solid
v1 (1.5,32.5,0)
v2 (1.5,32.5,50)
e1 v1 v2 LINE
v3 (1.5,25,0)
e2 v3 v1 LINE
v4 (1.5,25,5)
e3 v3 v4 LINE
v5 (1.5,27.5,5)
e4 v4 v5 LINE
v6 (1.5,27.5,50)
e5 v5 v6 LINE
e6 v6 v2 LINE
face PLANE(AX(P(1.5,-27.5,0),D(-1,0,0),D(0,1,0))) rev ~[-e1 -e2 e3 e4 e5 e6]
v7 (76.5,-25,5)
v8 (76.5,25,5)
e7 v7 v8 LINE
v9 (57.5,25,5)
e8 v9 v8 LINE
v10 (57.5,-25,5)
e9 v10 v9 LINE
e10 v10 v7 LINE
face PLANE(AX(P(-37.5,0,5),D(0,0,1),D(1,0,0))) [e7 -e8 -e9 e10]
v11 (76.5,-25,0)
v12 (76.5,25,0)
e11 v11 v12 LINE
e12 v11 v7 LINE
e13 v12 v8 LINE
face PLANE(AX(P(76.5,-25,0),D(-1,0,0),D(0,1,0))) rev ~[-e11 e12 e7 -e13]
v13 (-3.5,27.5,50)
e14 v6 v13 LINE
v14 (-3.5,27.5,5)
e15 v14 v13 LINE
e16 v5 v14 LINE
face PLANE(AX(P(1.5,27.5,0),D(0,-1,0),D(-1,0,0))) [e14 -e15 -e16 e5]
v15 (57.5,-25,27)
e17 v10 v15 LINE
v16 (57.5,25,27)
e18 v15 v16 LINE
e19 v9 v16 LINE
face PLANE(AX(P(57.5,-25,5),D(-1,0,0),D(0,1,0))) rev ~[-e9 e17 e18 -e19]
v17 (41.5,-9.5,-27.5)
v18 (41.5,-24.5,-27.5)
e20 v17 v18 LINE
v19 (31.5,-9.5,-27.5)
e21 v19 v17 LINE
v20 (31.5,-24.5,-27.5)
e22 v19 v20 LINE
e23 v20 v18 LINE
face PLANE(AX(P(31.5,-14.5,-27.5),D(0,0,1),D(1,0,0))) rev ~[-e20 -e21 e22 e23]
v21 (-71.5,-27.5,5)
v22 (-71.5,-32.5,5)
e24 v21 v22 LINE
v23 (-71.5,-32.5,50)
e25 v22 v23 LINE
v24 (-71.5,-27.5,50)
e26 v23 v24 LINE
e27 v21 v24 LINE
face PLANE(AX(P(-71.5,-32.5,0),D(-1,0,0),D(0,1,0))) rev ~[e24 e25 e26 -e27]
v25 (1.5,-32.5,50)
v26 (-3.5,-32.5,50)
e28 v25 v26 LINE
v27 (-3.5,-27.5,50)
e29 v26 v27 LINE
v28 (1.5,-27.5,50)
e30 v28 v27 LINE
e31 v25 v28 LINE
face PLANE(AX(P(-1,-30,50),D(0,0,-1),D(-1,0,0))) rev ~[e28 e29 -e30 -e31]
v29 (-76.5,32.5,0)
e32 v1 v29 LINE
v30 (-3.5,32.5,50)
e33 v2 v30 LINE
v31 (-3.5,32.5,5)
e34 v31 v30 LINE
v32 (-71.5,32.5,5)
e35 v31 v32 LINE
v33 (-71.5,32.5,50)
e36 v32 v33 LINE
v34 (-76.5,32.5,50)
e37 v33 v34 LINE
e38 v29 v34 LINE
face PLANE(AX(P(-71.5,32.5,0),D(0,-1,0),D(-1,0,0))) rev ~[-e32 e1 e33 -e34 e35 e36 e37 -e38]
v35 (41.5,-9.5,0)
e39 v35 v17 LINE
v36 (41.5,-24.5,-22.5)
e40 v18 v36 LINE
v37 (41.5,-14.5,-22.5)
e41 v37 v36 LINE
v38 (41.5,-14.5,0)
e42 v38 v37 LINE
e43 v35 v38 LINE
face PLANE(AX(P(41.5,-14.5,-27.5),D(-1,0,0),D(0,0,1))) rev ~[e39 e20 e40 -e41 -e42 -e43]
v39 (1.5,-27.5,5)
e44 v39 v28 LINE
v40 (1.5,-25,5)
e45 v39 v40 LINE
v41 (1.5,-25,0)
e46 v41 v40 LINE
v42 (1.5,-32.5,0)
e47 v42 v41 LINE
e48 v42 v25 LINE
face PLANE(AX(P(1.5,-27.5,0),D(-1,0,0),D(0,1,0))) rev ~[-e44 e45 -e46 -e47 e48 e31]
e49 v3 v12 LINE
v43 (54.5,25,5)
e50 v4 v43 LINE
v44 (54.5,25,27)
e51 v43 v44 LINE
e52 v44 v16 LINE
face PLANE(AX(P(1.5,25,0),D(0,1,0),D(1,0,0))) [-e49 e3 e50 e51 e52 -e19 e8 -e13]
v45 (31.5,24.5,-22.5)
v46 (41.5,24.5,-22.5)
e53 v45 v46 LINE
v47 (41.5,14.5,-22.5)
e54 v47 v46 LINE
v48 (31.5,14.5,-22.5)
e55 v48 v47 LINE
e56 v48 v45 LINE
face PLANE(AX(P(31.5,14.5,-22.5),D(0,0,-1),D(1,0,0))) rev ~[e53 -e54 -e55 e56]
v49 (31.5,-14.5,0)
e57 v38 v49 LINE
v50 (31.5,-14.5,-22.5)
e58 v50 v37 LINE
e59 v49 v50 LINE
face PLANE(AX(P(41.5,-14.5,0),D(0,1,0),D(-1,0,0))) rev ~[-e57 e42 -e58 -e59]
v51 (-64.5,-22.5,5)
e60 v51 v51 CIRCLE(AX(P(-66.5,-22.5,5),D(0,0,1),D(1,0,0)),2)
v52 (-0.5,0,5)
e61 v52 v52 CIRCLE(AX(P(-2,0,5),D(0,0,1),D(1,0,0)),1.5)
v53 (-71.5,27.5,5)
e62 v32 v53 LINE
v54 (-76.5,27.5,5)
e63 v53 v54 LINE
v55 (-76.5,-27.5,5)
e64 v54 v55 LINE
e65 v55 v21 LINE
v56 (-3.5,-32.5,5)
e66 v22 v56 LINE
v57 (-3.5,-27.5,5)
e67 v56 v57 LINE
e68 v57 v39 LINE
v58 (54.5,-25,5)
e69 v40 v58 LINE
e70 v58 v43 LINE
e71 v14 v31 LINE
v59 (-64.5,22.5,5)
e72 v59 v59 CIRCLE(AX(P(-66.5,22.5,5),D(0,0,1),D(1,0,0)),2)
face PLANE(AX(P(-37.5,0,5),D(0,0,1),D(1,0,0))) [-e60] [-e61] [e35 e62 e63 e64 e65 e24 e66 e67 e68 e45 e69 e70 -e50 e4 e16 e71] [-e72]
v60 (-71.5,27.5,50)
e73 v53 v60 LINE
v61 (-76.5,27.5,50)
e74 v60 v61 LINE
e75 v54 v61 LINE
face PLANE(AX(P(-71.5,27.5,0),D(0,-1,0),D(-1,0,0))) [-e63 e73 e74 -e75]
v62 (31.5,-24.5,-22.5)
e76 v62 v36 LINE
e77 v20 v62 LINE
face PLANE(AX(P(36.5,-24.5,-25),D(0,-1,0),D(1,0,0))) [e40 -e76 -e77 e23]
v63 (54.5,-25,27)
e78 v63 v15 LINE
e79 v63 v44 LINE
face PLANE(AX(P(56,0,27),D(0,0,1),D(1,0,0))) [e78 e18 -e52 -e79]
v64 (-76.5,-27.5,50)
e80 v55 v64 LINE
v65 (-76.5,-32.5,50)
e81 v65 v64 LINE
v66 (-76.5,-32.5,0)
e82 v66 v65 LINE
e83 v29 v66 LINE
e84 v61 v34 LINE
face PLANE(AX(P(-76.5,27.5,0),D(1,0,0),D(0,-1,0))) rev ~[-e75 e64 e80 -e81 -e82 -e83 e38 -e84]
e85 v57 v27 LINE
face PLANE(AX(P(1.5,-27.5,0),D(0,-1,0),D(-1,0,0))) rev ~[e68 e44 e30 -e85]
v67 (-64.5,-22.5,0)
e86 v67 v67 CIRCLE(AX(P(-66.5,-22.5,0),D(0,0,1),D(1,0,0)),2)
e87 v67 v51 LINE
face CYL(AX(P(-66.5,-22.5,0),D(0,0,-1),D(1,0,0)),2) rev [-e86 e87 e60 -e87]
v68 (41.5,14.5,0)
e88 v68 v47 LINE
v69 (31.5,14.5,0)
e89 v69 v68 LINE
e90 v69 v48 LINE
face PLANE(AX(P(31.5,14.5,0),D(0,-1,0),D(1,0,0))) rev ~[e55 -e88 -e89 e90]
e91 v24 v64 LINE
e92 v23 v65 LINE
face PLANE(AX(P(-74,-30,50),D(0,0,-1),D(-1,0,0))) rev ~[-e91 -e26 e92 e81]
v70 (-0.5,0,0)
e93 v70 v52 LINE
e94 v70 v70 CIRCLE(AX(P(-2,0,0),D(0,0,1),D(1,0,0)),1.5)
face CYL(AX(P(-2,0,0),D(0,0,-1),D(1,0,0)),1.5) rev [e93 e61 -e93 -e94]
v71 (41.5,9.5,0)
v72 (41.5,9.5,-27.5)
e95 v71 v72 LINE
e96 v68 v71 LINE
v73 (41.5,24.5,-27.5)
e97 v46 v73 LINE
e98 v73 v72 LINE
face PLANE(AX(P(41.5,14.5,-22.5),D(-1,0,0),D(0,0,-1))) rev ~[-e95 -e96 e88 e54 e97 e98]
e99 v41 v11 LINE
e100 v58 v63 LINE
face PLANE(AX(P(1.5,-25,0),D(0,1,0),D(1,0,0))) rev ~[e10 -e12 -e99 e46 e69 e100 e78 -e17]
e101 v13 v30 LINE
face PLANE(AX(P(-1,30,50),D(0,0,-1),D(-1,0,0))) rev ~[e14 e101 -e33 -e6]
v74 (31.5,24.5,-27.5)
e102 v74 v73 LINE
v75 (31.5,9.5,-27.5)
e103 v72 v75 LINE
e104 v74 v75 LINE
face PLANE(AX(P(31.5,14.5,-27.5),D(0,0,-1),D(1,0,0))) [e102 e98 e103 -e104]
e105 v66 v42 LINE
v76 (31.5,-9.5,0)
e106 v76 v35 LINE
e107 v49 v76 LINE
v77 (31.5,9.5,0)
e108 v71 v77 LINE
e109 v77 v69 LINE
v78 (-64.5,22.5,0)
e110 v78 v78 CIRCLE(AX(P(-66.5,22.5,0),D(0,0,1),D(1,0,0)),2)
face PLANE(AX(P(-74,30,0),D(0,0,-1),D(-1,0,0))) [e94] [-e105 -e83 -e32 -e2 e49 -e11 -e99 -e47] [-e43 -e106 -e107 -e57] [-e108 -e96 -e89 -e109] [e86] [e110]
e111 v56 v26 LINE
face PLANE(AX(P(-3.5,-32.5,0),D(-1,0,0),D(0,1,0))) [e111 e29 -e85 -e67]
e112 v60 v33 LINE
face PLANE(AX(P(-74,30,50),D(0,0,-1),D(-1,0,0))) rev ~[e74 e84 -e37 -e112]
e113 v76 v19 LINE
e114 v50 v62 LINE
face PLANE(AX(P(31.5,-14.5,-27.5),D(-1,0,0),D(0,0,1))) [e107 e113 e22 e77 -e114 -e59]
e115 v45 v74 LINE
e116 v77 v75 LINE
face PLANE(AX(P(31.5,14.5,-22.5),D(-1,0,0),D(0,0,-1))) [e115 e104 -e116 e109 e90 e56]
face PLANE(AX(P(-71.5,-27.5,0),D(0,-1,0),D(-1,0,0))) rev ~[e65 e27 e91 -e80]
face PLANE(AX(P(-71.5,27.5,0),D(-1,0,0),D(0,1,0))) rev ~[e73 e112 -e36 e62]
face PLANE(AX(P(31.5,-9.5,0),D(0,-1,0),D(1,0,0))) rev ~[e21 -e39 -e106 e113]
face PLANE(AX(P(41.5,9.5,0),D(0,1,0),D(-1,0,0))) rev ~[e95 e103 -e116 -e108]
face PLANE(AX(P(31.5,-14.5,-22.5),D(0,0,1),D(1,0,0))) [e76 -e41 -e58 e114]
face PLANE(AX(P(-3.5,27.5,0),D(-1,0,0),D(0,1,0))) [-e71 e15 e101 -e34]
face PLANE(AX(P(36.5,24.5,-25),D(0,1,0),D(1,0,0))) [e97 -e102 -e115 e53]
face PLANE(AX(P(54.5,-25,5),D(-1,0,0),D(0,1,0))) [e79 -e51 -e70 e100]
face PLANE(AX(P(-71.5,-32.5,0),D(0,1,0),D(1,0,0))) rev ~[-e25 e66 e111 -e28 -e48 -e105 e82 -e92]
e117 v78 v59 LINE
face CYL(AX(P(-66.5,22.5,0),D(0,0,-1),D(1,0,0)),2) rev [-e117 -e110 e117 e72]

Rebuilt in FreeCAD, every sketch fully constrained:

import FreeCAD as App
import Part
import Sketcher
from FreeCAD import Vector
Q = App.Units.Quantity


def add_polygon(sketch, points):
    """Adds a closed chain of lines whose ends are joined by coincident constraints."""
    first, n = sketch.GeometryCount, len(points)
    for a, b in zip(points, points[1:] + points[:1]):
        sketch.addGeometry(Part.LineSegment(App.Vector(*a, 0), App.Vector(*b, 0)), False)
    for i in range(n):
        sketch.addConstraint(Sketcher.Constraint("Coincident", first + i, 2, first + (i + 1) % n, 1))

doc = App.newDocument("Part")
body = doc.addObject("PartDesign::Body", "Body")

# Sketch on XY plane
sketch1 = body.newObject("Sketcher::SketchObject", "Sketch")
sketch1.AttachmentSupport = (doc.getObject("XY_Plane"), [""])
sketch1.MapMode = "FlatFace"
add_polygon(sketch1, [(-71.5, -27.5), (-71.5, -32.5), (-3.5, -32.5), (-3.5, -27.5), (1.5, -27.5), (1.5, -25), (76.5, -25), (76.5, 25), (1.5, 25), (1.5, 27.5), (-3.5, 27.5), (-3.5, 32.5), (-71.5, 32.5), (-71.5, 27.5), (-76.5, 27.5), (-76.5, -27.5)])  # lines 0-15
sketch1.addGeometry(Part.Circle(Vector(-66.5, -22.5, 0), Vector(0, 0, 1), 2), False)  # 16
sketch1.addGeometry(Part.Circle(Vector(-2, 0, 0), Vector(0, 0, 1), 1.5), False)  # 17
sketch1.addGeometry(Part.Circle(Vector(-66.5, 22.5, 0), Vector(0, 0, 1), 2), False)  # 18
sketch1.addConstraint([
    Sketcher.Constraint("Vertical", 0),
    Sketcher.Constraint("Horizontal", 1),
    Sketcher.Constraint("Vertical", 2),
    Sketcher.Constraint("Horizontal", 3),
    Sketcher.Constraint("Vertical", 4),
    Sketcher.Constraint("Horizontal", 5),
    Sketcher.Constraint("Vertical", 6),
    Sketcher.Constraint("Horizontal", 7),
    Sketcher.Constraint("Vertical", 8),
    Sketcher.Constraint("Horizontal", 9),
    Sketcher.Constraint("Vertical", 10),
    Sketcher.Constraint("Horizontal", 11),
    Sketcher.Constraint("Vertical", 12),
    Sketcher.Constraint("Horizontal", 13),
    Sketcher.Constraint("Vertical", 14),
    Sketcher.Constraint("Horizontal", 15),
    Sketcher.Constraint("Equal", 16, 18),
    Sketcher.Constraint("Symmetric", 16, 3, 18, 3, -1),
    Sketcher.Constraint("Symmetric", 4, 2, 7, 2, -1),
    Sketcher.Constraint("Symmetric", 2, 2, 9, 2, -1),
    Sketcher.Constraint("Symmetric", 0, 2, 11, 2, -1),
    Sketcher.Constraint("PointOnObject", 17, 3, -1),
    Sketcher.Constraint("Horizontal", 9, 2, 12, 2),
    Sketcher.Constraint("Horizontal", 3, 2, 14, 2),
    Sketcher.Constraint("Equal", 9, 13),
    Sketcher.Constraint("Equal", 15, 0),
    Sketcher.Constraint("Diameter", 16, Q("4 mm")),
    Sketcher.Constraint("Diameter", 17, Q("3 mm")),
    Sketcher.Constraint("DistanceX", 1, 1, 1, 2, Q("68 mm")),
    Sketcher.Constraint("DistanceX", 3, 1, 3, 2, Q("5 mm")),
    Sketcher.Constraint("DistanceX", 5, 1, 5, 2, Q("75 mm")),
    Sketcher.Constraint("DistanceY", 6, 1, 6, 2, Q("50 mm")),
    Sketcher.Constraint("DistanceY", 14, 2, 14, 1, Q("55 mm")),
    Sketcher.Constraint("DistanceX", 17, 3, -1, 1, Q("2 mm")),
    Sketcher.Constraint("DistanceY", 16, 3, 18, 3, Q("45 mm")),
    Sketcher.Constraint("DistanceX", 0, 2, 16, 3, Q("5 mm")),
    Sketcher.Constraint("DistanceX", 16, 3, -1, 1, Q("66.5 mm")),
])
pad1 = body.newObject("PartDesign::Pad", "Pad")
pad1.Profile = sketch1
pad1.Length = 5

# Sketch on XY plane
sketch2 = body.newObject("Sketcher::SketchObject", "Sketch001")
sketch2.AttachmentSupport = (doc.getObject("XY_Plane"), [""])
sketch2.MapMode = "FlatFace"
add_polygon(sketch2, [(-72, 32), (-72, 28), (-76, 28), (-76, 32)])  # lines 0-3
add_polygon(sketch2, [(2, -28), (2, -32), (-4, -32), (-4, -28)])  # lines 4-7
add_polygon(sketch2, [(2, 32), (2, 28), (-4, 28), (-4, 32)])  # lines 8-11
add_polygon(sketch2, [(-72, -28), (-72, -32), (-76, -32), (-76, -28)])  # lines 12-15
sketch2.addConstraint([
    Sketcher.Constraint("Vertical", 0),
    Sketcher.Constraint("Horizontal", 1),
    Sketcher.Constraint("Vertical", 2),
    Sketcher.Constraint("Horizontal", 3),
    Sketcher.Constraint("Vertical", 4),
    Sketcher.Constraint("Horizontal", 5),
    Sketcher.Constraint("Vertical", 6),
    Sketcher.Constraint("Horizontal", 7),
    Sketcher.Constraint("Vertical", 8),
    Sketcher.Constraint("Horizontal", 9),
    Sketcher.Constraint("Vertical", 10),
    Sketcher.Constraint("Horizontal", 11),
    Sketcher.Constraint("Vertical", 12),
    Sketcher.Constraint("Horizontal", 13),
    Sketcher.Constraint("Vertical", 14),
    Sketcher.Constraint("Horizontal", 15),
    Sketcher.Constraint("Symmetric", 7, 2, 8, 2, -1),
    Sketcher.Constraint("Symmetric", 5, 2, 10, 2, -1),
    Sketcher.Constraint("Symmetric", 3, 2, 12, 2, -1),
    Sketcher.Constraint("Symmetric", 1, 2, 14, 2, -1),
    Sketcher.Constraint("Horizontal", 1, 2, 8, 2),
    Sketcher.Constraint("Horizontal", 3, 2, 10, 2),
    Sketcher.Constraint("Equal", 3, 5),
    Sketcher.Constraint("Equal", 15, 0),
    Sketcher.Constraint("DistanceX", 1, 2, 1, 1, Q("5 mm")),
    Sketcher.Constraint("DistanceX", 0, 2, 4, 2, Q("73 mm")),
    Sketcher.Constraint("DistanceY", 4, 2, 0, 2, Q("60 mm")),
    Sketcher.Constraint("DistanceX", 0, 2, -1, 1, Q("71.5 mm")),
])
pad2 = body.newObject("PartDesign::Pad", "Pad001")
pad2.Profile = sketch2
pad2.Length = 50

# Sketch on XY plane
sketch3 = body.newObject("Sketcher::SketchObject", "Sketch002")
sketch3.AttachmentSupport = (doc.getObject("XY_Plane"), [""])
sketch3.MapMode = "FlatFace"
sketch3.AttachmentOffset = App.Placement(Vector(0, 0, 5), App.Rotation())
add_polygon(sketch3, [(54.5, 25), (54.5, -25), (57.5, -25), (57.5, 25)])  # lines 0-3
sketch3.addConstraint([
    Sketcher.Constraint("Vertical", 0),
    Sketcher.Constraint("Horizontal", 1),
    Sketcher.Constraint("Vertical", 2),
    Sketcher.Constraint("Horizontal", 3),
    Sketcher.Constraint("DistanceX", 1, 1, 1, 2, Q("3 mm")),
    Sketcher.Constraint("DistanceY", 0, 2, 0, 1, Q("50 mm")),
    Sketcher.Constraint("DistanceY", 0, 2, -1, 1, Q("25 mm")),
    Sketcher.Constraint("DistanceX", -1, 1, 0, 2, Q("54.5 mm")),
])
pad3 = body.newObject("PartDesign::Pad", "Pad002")
pad3.Profile = sketch3
pad3.Length = 22

# Sketch on XY plane
sketch4 = body.newObject("Sketcher::SketchObject", "Sketch003")
sketch4.AttachmentSupport = (doc.getObject("XY_Plane"), [""])
sketch4.MapMode = "FlatFace"
add_polygon(sketch4, [(32, 14), (42, 14), (42, 10), (32, 10)])  # lines 0-3
add_polygon(sketch4, [(32, -10), (42, -10), (42, -14), (32, -14)])  # lines 4-7
sketch4.addConstraint([
    Sketcher.Constraint("Horizontal", 0),
    Sketcher.Constraint("Vertical", 1),
    Sketcher.Constraint("Horizontal", 2),
    Sketcher.Constraint("Vertical", 3),
    Sketcher.Constraint("Horizontal", 4),
    Sketcher.Constraint("Vertical", 5),
    Sketcher.Constraint("Horizontal", 6),
    Sketcher.Constraint("Vertical", 7),
    Sketcher.Constraint("Symmetric", 1, 2, 4, 2, -1),
    Sketcher.Constraint("Symmetric", 3, 2, 6, 2, -1),
    Sketcher.Constraint("DistanceX", 0, 1, 0, 2, Q("10 mm")),
    Sketcher.Constraint("DistanceY", 1, 2, 1, 1, Q("5 mm")),
    Sketcher.Constraint("DistanceY", 4, 2, 1, 2, Q("19 mm")),
    Sketcher.Constraint("DistanceX", -1, 1, 0, 2, Q("41.5 mm")),
])
pad4 = body.newObject("PartDesign::Pad", "Pad003")
pad4.Profile = sketch4
pad4.Length = 27.5
pad4.Reversed = True

# Sketch on XZ plane
sketch5 = body.newObject("Sketcher::SketchObject", "Sketch004")
sketch5.AttachmentSupport = (doc.getObject("XZ_Plane"), [""])
sketch5.MapMode = "FlatFace"
sketch5.AttachmentOffset = App.Placement(Vector(0, 0, -14.5), App.Rotation())
add_polygon(sketch5, [(32, -28), (32, -22), (42, -22), (42, -28)])  # lines 0-3
sketch5.addConstraint([
    Sketcher.Constraint("Vertical", 0),
    Sketcher.Constraint("Horizontal", 1),
    Sketcher.Constraint("Vertical", 2),
    Sketcher.Constraint("Horizontal", 3),
    Sketcher.Constraint("DistanceX", 1, 1, 1, 2, Q("10 mm")),
    Sketcher.Constraint("DistanceY", 0, 1, 0, 2, Q("5 mm")),
    Sketcher.Constraint("DistanceX", -1, 1, 0, 2, Q("31.5 mm")),
    Sketcher.Constraint("DistanceY", 0, 2, -1, 1, Q("22.5 mm")),
])
pad5 = body.newObject("PartDesign::Pad", "Pad004")
pad5.Profile = sketch5
pad5.Length = 10
pad5.Reversed = True

# Sketch on XZ plane
sketch6 = body.newObject("Sketcher::SketchObject", "Sketch005")
sketch6.AttachmentSupport = (doc.getObject("XZ_Plane"), [""])
sketch6.MapMode = "FlatFace"
sketch6.AttachmentOffset = App.Placement(Vector(0, 0, 14.5), App.Rotation())
add_polygon(sketch6, [(32, -22), (32, -28), (42, -28), (42, -22)])  # lines 0-3
sketch6.addConstraint([
    Sketcher.Constraint("Vertical", 0),
    Sketcher.Constraint("Horizontal", 1),
    Sketcher.Constraint("Vertical", 2),
    Sketcher.Constraint("Horizontal", 3),
    Sketcher.Constraint("DistanceX", 1, 1, 1, 2, Q("10 mm")),
    Sketcher.Constraint("DistanceY", 0, 2, 0, 1, Q("5 mm")),
    Sketcher.Constraint("DistanceX", -1, 1, 0, 2, Q("31.5 mm")),
    Sketcher.Constraint("DistanceY", 0, 2, -1, 1, Q("27.5 mm")),
])
pad6 = body.newObject("PartDesign::Pad", "Pad005")
pad6.Profile = sketch6
pad6.Length = 10

doc.recompute()
